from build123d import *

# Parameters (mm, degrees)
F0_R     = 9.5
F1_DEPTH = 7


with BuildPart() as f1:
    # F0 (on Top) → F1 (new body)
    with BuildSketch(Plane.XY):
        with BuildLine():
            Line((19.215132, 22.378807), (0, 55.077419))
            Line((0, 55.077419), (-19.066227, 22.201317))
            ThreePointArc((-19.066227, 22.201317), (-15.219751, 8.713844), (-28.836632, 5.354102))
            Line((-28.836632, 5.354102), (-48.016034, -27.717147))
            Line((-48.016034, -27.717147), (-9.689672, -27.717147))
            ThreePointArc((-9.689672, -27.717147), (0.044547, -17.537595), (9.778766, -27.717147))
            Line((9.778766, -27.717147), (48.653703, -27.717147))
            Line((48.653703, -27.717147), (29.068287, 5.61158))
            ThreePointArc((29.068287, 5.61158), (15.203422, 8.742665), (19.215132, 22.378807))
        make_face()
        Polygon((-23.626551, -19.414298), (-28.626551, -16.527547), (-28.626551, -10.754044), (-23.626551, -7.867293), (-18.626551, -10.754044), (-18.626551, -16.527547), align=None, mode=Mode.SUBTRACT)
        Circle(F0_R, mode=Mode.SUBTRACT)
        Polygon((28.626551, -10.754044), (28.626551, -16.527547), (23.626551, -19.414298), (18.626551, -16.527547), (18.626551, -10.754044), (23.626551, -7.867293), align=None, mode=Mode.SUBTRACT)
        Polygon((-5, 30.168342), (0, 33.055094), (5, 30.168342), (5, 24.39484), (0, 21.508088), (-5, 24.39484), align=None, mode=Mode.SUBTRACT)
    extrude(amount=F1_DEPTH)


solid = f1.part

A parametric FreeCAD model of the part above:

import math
import FreeCAD as App
import Part
import Sketcher
from FreeCAD import Vector
Q = App.Units.Quantity

doc = App.newDocument("Part")
body = doc.addObject("PartDesign::Body", "Body")

# Sketch on XY plane
sketch1 = body.newObject("Sketcher::SketchObject", "Sketch")
sketch1.AttachmentSupport = (doc.getObject("XY_Plane"), [""])
sketch1.MapMode = "FlatFace"
sketch1.addGeometry([
    Part.LineSegment(Vector(19.215132, 22.378807, 0), Vector(0, 55.077419, 0)),  # 0
    Part.LineSegment(Vector(0, 55.077419, 0), Vector(-19.066227, 22.201317, 0)),  # 1
    Part.ArcOfCircle(Part.Circle(Vector(-23.648793, 13.602198, 0), Vector(0, 0, 1), 9.74396), math.radians(-122.168829), math.radians(61.946349)),  # 2
    Part.LineSegment(Vector(-28.836632, 5.354102, 0), Vector(-48.016034, -27.717147, 0)),  # 3
    Part.LineSegment(Vector(-48.016034, -27.717147, 0), Vector(-9.689672, -27.717147, 0)),  # 4
    Part.ArcOfCircle(Part.Circle(Vector(0.044547, -27.281555, 0), Vector(0, 0, 1), 9.74396), math.radians(-2.562192), math.radians(182.562192)),  # 5
    Part.LineSegment(Vector(9.778766, -27.717147, 0), Vector(48.653703, -27.717147, 0)),  # 6
    Part.LineSegment(Vector(48.653703, -27.717147, 0), Vector(29.068287, 5.61158, 0)),  # 7
    Part.ArcOfCircle(Part.Circle(Vector(23.604246, 13.679356, 0), Vector(0, 0, 1), 9.74396), math.radians(116.772209), math.radians(304.108501)),  # 8
    Part.LineSegment(Vector(-18.626551, -16.527547, 0), Vector(-23.626551, -19.414298, 0)),  # 9
    Part.LineSegment(Vector(-23.626551, -19.414298, 0), Vector(-28.626551, -16.527547, 0)),  # 10
    Part.LineSegment(Vector(-28.626551, -16.527547, 0), Vector(-28.626551, -10.754044, 0)),  # 11
    Part.LineSegment(Vector(-28.626551, -10.754044, 0), Vector(-23.626551, -7.867293, 0)),  # 12
    Part.LineSegment(Vector(-23.626551, -7.867293, 0), Vector(-18.626551, -10.754044, 0)),  # 13
    Part.LineSegment(Vector(-18.626551, -10.754044, 0), Vector(-18.626551, -16.527547, 0)),  # 14
    Part.Circle(Vector(0, 0, 0), Vector(0, 0, 1), 9.5),  # 15
    Part.LineSegment(Vector(23.626551, -7.867293, 0), Vector(28.626551, -10.754044, 0)),  # 16
    Part.LineSegment(Vector(28.626551, -10.754044, 0), Vector(28.626551, -16.527547, 0)),  # 17
    Part.LineSegment(Vector(28.626551, -16.527547, 0), Vector(23.626551, -19.414298, 0)),  # 18
    Part.LineSegment(Vector(23.626551, -19.414298, 0), Vector(18.626551, -16.527547, 0)),  # 19
    Part.LineSegment(Vector(18.626551, -16.527547, 0), Vector(18.626551, -10.754044, 0)),  # 20
    Part.LineSegment(Vector(18.626551, -10.754044, 0), Vector(23.626551, -7.867293, 0)),  # 21
    Part.LineSegment(Vector(-5, 24.39484, 0), Vector(-5, 30.168342, 0)),  # 22
    Part.LineSegment(Vector(-5, 30.168342, 0), Vector(0, 33.055094, 0)),  # 23
    Part.LineSegment(Vector(0, 33.055094, 0), Vector(5, 30.168342, 0)),  # 24
    Part.LineSegment(Vector(5, 30.168342, 0), Vector(5, 24.39484, 0)),  # 25
    Part.LineSegment(Vector(5, 24.39484, 0), Vector(0, 21.508088, 0)),  # 26
    Part.LineSegment(Vector(0, 21.508088, 0), Vector(-5, 24.39484, 0)),  # 27
], False)
sketch1.addConstraint([
    Sketcher.Constraint("Coincident", 0, 2, 1, 1),
    Sketcher.Constraint("Coincident", 1, 2, 2, 2),
    Sketcher.Constraint("Coincident", 2, 1, 3, 1),
    Sketcher.Constraint("Coincident", 3, 2, 4, 1),
    Sketcher.Constraint("Coincident", 4, 2, 5, 2),
    Sketcher.Constraint("Coincident", 5, 1, 6, 1),
    Sketcher.Constraint("Coincident", 6, 2, 7, 1),
    Sketcher.Constraint("Coincident", 7, 2, 8, 2),
    Sketcher.Constraint("Coincident", 8, 1, 0, 1),
    Sketcher.Constraint("Coincident", 9, 2, 10, 1),
    Sketcher.Constraint("Coincident", 10, 2, 11, 1),
    Sketcher.Constraint("Coincident", 11, 2, 12, 1),
    Sketcher.Constraint("Coincident", 12, 2, 13, 1),
    Sketcher.Constraint("Coincident", 13, 2, 14, 1),
    Sketcher.Constraint("Coincident", 14, 2, 9, 1),
    Sketcher.Constraint("Coincident", 16, 2, 17, 1),
    Sketcher.Constraint("Coincident", 17, 2, 18, 1),
    Sketcher.Constraint("Coincident", 18, 2, 19, 1),
    Sketcher.Constraint("Coincident", 19, 2, 20, 1),
    Sketcher.Constraint("Coincident", 20, 2, 21, 1),
    Sketcher.Constraint("Coincident", 21, 2, 16, 1),
    Sketcher.Constraint("Coincident", 22, 2, 23, 1),
    Sketcher.Constraint("Coincident", 23, 2, 24, 1),
    Sketcher.Constraint("Coincident", 24, 2, 25, 1),
    Sketcher.Constraint("Coincident", 25, 2, 26, 1),
    Sketcher.Constraint("Coincident", 26, 2, 27, 1),
    Sketcher.Constraint("Coincident", 27, 2, 22, 1),
    Sketcher.Constraint("Horizontal", 4),
    Sketcher.Constraint("Horizontal", 6),
    Sketcher.Constraint("Vertical", 11),
    Sketcher.Constraint("Vertical", 14),
    Sketcher.Constraint("Vertical", 17),
    Sketcher.Constraint("Vertical", 20),
    Sketcher.Constraint("Vertical", 22),
    Sketcher.Constraint("Vertical", 25),
    Sketcher.Constraint("Coincident", 15, 3, -1, 1),
    Sketcher.Constraint("PointOnObject", 0, 2, -2),
    Sketcher.Constraint("PointOnObject", 23, 2, -2),
    Sketcher.Constraint("PointOnObject", 26, 2, -2),
    Sketcher.Constraint("Diameter", 15, Q("19 mm")),
    Sketcher.Constraint("DistanceX", 22, 2, -1, 1, Q("5 mm")),
    Sketcher.Constraint("DistanceX", -1, 1, 24, 2, Q("5 mm")),
    Sketcher.Constraint("DistanceX", 10, 2, 9, 2, Q("5 mm")),
    Sketcher.Constraint("DistanceX", 11, 2, 12, 2, Q("5 mm")),
    Sketcher.Constraint("DistanceX", 12, 2, 13, 2, Q("5 mm")),
    Sketcher.Constraint("DistanceX", 18, 2, 17, 2, Q("5 mm")),
    Sketcher.Constraint("DistanceX", 19, 2, 18, 2, Q("5 mm")),
    Sketcher.Constraint("DistanceX", 21, 2, 16, 2, Q("5 mm")),
    Sketcher.Constraint("Radius", 2, Q("9.74396 mm")),
    Sketcher.Constraint("Radius", 5, Q("9.74396 mm")),
    Sketcher.Constraint("Radius", 8, Q("9.74396 mm")),
    Sketcher.Constraint("DistanceX", 4, 1, 4, 2, Q("38.326362 mm")),
    Sketcher.Constraint("DistanceY", -1, 1, 2, 3, Q("13.602198 mm")),
    Sketcher.Constraint("DistanceY", -1, 1, 2, 1, Q("5.354102 mm")),
    Sketcher.Constraint("DistanceX", 5, 3, 8, 3, Q("23.559699 mm")),
    Sketcher.Constraint("DistanceX", 3, 2, 2, 1, Q("19.179402 mm")),
    Sketcher.Constraint("DistanceX", 9, 2, 5, 3, Q("23.671098 mm")),
    Sketcher.Constraint("DistanceY", 9, 2, 2, 1, Q("24.7684 mm")),
    Sketcher.Constraint("DistanceY", 4, 2, 10, 2, Q("11.1896 mm")),
    Sketcher.Constraint("DistanceY", 16, 2, 8, 3, Q("24.4334 mm")),
    Sketcher.Constraint("DistanceY", 5, 1, 17, 2, Q("11.1896 mm")),
    Sketcher.Constraint("DistanceY", 5, 1, 19, 2, Q("11.1896 mm")),
    Sketcher.Constraint("DistanceX", 6, 1, 6, 2, Q("38.874937 mm")),
    Sketcher.Constraint("DistanceY", 11, 1, 11, 2, Q("5.773503 mm")),
    Sketcher.Constraint("DistanceY", 14, 2, 14, 1, Q("5.773503 mm")),
    Sketcher.Constraint("DistanceY", 17, 2, 17, 1, Q("5.773503 mm")),
    Sketcher.Constraint("DistanceY", 20, 1, 20, 2, Q("5.773503 mm")),
    Sketcher.Constraint("DistanceY", 22, 1, 22, 2, Q("5.773502 mm")),
    Sketcher.Constraint("DistanceY", 25, 2, 25, 1, Q("5.773502 mm")),
    Sketcher.Constraint("DistanceY", -1, 1, 0, 2, Q("55.077419 mm")),
    Sketcher.Constraint("DistanceY", -1, 1, 7, 2, Q("5.61158 mm")),
    Sketcher.Constraint("DistanceX", -1, 1, 8, 1, Q("19.215132 mm")),
    Sketcher.Constraint("DistanceX", 9, 2, -1, 1, Q("23.626551 mm")),
    Sketcher.Constraint("DistanceX", -1, 1, 16, 2, Q("28.626551 mm")),
    Sketcher.Constraint("DistanceY", -1, 1, 22, 2, Q("30.168342 mm")),
    Sketcher.Constraint("DistanceY", -1, 1, 24, 2, Q("30.168342 mm")),
    Sketcher.Constraint("DistanceY", -1, 1, 26, 2, Q("21.508088 mm")),
    Sketcher.Constraint("DistanceX", 2, 3, 5, 3, Q("23.69334 mm")),
    Sketcher.Constraint("DistanceY", 2, 3, 8, 3, Q("0.077158 mm")),
    Sketcher.Constraint("DistanceY", 5, 3, 8, 3, Q("40.960912 mm")),
    Sketcher.Constraint("DistanceY", 2, 3, 1, 2, Q("8.599119 mm")),
    Sketcher.Constraint("DistanceY", 11, 2, 12, 2, Q("2.886751 mm")),
    Sketcher.Constraint("DistanceY", 13, 2, 12, 2, Q("2.886751 mm")),
    Sketcher.Constraint("DistanceY", 18, 2, 17, 2, Q("2.886751 mm")),
    Sketcher.Constraint("DistanceY", 16, 2, 21, 2, Q("2.886751 mm")),
    Sketcher.Constraint("DistanceY", 22, 2, 23, 2, Q("2.886752 mm")),
])
pad1 = body.newObject("PartDesign::Pad", "Pad")
pad1.Profile = sketch1
pad1.Length = 7

doc.recompute()
